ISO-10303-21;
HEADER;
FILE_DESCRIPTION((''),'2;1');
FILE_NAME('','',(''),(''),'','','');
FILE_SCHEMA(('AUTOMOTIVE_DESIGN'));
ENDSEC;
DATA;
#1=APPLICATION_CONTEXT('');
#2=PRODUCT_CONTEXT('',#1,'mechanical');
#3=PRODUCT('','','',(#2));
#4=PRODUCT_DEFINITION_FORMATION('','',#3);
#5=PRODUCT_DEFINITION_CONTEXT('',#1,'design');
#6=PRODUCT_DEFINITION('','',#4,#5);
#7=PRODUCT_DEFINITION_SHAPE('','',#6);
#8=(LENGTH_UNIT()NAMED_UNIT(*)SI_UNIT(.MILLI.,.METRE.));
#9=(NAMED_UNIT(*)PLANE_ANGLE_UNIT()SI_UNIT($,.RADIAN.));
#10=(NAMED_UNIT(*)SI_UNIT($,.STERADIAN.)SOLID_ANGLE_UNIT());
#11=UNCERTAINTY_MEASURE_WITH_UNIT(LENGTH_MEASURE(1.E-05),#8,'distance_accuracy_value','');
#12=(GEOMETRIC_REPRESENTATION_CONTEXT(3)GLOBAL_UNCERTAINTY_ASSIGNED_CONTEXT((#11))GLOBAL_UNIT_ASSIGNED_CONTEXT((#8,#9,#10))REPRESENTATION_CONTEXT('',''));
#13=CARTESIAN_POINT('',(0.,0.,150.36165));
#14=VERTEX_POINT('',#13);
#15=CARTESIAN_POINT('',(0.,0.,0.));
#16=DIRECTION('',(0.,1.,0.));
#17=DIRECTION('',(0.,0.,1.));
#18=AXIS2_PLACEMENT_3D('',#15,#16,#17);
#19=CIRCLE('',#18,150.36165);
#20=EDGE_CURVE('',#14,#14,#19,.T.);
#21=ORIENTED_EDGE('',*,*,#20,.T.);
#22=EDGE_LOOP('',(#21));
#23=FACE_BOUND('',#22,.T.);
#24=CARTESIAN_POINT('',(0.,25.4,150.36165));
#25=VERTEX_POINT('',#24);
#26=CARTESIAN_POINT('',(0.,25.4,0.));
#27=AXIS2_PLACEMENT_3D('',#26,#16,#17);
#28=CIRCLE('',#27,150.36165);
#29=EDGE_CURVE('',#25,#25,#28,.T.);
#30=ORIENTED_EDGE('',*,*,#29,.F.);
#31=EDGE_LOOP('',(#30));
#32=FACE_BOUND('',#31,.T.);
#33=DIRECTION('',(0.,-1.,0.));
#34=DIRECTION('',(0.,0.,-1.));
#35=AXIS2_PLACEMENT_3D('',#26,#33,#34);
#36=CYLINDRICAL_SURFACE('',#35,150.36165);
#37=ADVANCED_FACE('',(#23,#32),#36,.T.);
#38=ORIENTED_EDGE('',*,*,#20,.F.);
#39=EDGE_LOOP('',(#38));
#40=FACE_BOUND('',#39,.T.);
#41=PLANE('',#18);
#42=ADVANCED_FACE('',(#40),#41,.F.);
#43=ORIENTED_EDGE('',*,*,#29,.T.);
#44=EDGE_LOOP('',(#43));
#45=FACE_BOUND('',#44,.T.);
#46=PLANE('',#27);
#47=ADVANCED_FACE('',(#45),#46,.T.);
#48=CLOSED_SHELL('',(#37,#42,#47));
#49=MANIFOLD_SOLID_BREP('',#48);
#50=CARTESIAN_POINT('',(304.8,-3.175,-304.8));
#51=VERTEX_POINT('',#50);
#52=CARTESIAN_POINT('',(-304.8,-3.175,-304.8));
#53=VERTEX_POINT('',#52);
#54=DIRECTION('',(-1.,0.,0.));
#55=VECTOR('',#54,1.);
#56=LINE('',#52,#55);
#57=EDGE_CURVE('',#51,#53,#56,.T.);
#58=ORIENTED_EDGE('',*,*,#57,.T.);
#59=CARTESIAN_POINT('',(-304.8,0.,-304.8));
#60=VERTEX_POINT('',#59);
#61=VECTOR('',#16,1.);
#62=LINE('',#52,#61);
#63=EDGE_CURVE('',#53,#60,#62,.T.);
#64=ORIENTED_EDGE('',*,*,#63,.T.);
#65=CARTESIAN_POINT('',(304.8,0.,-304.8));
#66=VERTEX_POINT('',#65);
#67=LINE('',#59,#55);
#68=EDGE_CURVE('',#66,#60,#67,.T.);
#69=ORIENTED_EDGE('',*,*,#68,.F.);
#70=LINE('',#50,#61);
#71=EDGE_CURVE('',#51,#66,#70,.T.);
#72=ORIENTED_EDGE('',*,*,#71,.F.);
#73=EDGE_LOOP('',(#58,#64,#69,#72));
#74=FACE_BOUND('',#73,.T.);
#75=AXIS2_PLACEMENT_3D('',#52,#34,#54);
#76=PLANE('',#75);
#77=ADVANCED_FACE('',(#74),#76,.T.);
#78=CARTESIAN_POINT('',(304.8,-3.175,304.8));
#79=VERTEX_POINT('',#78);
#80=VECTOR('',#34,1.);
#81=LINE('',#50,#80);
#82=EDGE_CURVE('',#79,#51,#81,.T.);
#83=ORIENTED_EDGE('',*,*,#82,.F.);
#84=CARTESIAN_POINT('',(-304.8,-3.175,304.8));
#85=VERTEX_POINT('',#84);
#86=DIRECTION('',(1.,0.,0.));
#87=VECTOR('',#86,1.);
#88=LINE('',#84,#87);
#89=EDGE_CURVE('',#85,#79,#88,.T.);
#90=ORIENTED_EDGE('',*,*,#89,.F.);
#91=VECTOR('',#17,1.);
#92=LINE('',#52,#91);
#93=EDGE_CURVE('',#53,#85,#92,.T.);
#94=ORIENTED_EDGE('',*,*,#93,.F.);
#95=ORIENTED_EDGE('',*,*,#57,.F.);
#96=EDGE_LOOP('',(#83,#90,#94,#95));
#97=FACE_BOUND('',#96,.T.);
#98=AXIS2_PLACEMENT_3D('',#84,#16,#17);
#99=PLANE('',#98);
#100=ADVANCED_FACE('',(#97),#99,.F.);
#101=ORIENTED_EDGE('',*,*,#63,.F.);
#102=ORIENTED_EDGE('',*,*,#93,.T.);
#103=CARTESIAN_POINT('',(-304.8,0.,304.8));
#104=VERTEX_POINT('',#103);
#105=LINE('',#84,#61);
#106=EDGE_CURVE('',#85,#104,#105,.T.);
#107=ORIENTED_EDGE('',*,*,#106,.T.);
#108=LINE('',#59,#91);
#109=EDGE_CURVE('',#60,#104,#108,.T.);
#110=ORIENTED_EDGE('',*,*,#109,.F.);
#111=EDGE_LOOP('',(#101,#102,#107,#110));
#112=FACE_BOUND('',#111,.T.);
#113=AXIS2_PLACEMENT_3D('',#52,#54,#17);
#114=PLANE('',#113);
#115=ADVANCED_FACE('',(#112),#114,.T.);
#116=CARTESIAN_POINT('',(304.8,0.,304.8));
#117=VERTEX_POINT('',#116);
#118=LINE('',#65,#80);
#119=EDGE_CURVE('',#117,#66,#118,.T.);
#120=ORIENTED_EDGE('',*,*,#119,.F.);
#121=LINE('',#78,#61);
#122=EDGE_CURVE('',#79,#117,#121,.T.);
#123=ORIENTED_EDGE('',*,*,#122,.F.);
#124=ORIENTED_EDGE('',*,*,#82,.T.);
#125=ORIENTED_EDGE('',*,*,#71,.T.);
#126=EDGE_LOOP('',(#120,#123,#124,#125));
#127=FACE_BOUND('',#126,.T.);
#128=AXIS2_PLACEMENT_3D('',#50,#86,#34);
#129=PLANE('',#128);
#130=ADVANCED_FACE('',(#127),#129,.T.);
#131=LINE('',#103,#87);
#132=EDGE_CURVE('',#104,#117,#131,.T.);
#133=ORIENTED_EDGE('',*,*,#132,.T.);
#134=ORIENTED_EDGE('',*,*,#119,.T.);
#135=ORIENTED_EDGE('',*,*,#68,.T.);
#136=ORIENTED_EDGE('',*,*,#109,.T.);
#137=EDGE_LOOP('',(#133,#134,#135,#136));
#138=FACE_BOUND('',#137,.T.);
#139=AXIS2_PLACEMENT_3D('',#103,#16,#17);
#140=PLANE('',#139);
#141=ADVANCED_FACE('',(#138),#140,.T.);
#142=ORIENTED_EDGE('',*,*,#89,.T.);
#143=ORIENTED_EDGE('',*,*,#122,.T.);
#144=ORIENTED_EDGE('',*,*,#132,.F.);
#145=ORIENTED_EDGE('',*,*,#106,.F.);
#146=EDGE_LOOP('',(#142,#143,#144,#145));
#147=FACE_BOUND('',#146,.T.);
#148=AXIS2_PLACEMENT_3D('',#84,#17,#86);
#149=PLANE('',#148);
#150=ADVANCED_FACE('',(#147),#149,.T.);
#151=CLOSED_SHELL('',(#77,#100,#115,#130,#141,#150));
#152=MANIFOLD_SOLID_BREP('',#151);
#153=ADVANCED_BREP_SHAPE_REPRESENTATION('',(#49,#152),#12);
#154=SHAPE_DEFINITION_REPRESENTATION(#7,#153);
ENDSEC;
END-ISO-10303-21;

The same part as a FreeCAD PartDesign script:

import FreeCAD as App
import Part
import Sketcher

V = App.Vector
Q = App.Units.Quantity


def add_polygon(sketch, points):
    """Adds a closed chain of lines whose ends are joined by coincident constraints."""
    first, n = sketch.GeometryCount, len(points)
    for a, b in zip(points, points[1:] + points[:1]):
        sketch.addGeometry(Part.LineSegment(App.Vector(*a, 0), App.Vector(*b, 0)), False)
    for i in range(n):
        sketch.addConstraint(Sketcher.Constraint("Coincident", first + i, 2, first + (i + 1) % n, 1))

doc = App.newDocument("Part")
params = doc.addObject("Spreadsheet::Sheet", "Params")
for row, (alias, value) in enumerate([
    ("sketch1_width", "24 in"),
    ("pad1_length", "0.125 in"),
    ("pad2_length", "1 in"),
], start=1):
    params.set(f"A{row}", alias)
    params.set(f"B{row}", "=" + value)
    params.setAlias(f"B{row}", alias)

body = doc.addObject("PartDesign::Body", "Body")

# Sketch on XZ plane
sketch1 = body.newObject("Sketcher::SketchObject", "Sketch")
sketch1.AttachmentSupport = (doc.getObject("XZ_Plane"), [""])
sketch1.MapMode = "FlatFace"
add_polygon(sketch1, [(-305, -305), (-305, 305), (305, 305), (305, -305)])  # lines 0-3
sketch1.addConstraint([
    Sketcher.Constraint("Vertical", 0),
    Sketcher.Constraint("Horizontal", 1),
    Sketcher.Constraint("Vertical", 2),
    Sketcher.Constraint("Horizontal", 3),
    Sketcher.Constraint("Symmetric", 0, 2, 2, 2, -1, 1),
    Sketcher.Constraint("Equal", 3, 0),
    Sketcher.Constraint("DistanceX", 1, 1, 1, 2, Q("24 in")),
])
sketch1.setExpression("Constraints[10]", "Params.sketch1_width")
pad1 = body.newObject("PartDesign::Pad", "Pad")
pad1.Profile = sketch1
pad1.setExpression("Length", "Params.pad1_length")
body2 = doc.addObject("PartDesign::Body", "Body001")

# Sketch on XZ plane
sketch2 = body2.newObject("Sketcher::SketchObject", "Sketch001")
sketch2.AttachmentSupport = (doc.getObject("XZ_Plane001"), [""])
sketch2.MapMode = "FlatFace"
sketch2.addGeometry(Part.Circle(V(0, 0, 0), V(0, 0, 1), 150), False)
sketch2.addConstraint([
    Sketcher.Constraint("Coincident", 0, 3, -1, 1),
    Sketcher.Constraint("Diameter", 0, Q("11.8395 in")),
])
pad2 = body2.newObject("PartDesign::Pad", "Pad001")
pad2.Profile = sketch2
pad2.setExpression("Length", "Params.pad2_length")
pad2.Reversed = True

doc.recompute()
